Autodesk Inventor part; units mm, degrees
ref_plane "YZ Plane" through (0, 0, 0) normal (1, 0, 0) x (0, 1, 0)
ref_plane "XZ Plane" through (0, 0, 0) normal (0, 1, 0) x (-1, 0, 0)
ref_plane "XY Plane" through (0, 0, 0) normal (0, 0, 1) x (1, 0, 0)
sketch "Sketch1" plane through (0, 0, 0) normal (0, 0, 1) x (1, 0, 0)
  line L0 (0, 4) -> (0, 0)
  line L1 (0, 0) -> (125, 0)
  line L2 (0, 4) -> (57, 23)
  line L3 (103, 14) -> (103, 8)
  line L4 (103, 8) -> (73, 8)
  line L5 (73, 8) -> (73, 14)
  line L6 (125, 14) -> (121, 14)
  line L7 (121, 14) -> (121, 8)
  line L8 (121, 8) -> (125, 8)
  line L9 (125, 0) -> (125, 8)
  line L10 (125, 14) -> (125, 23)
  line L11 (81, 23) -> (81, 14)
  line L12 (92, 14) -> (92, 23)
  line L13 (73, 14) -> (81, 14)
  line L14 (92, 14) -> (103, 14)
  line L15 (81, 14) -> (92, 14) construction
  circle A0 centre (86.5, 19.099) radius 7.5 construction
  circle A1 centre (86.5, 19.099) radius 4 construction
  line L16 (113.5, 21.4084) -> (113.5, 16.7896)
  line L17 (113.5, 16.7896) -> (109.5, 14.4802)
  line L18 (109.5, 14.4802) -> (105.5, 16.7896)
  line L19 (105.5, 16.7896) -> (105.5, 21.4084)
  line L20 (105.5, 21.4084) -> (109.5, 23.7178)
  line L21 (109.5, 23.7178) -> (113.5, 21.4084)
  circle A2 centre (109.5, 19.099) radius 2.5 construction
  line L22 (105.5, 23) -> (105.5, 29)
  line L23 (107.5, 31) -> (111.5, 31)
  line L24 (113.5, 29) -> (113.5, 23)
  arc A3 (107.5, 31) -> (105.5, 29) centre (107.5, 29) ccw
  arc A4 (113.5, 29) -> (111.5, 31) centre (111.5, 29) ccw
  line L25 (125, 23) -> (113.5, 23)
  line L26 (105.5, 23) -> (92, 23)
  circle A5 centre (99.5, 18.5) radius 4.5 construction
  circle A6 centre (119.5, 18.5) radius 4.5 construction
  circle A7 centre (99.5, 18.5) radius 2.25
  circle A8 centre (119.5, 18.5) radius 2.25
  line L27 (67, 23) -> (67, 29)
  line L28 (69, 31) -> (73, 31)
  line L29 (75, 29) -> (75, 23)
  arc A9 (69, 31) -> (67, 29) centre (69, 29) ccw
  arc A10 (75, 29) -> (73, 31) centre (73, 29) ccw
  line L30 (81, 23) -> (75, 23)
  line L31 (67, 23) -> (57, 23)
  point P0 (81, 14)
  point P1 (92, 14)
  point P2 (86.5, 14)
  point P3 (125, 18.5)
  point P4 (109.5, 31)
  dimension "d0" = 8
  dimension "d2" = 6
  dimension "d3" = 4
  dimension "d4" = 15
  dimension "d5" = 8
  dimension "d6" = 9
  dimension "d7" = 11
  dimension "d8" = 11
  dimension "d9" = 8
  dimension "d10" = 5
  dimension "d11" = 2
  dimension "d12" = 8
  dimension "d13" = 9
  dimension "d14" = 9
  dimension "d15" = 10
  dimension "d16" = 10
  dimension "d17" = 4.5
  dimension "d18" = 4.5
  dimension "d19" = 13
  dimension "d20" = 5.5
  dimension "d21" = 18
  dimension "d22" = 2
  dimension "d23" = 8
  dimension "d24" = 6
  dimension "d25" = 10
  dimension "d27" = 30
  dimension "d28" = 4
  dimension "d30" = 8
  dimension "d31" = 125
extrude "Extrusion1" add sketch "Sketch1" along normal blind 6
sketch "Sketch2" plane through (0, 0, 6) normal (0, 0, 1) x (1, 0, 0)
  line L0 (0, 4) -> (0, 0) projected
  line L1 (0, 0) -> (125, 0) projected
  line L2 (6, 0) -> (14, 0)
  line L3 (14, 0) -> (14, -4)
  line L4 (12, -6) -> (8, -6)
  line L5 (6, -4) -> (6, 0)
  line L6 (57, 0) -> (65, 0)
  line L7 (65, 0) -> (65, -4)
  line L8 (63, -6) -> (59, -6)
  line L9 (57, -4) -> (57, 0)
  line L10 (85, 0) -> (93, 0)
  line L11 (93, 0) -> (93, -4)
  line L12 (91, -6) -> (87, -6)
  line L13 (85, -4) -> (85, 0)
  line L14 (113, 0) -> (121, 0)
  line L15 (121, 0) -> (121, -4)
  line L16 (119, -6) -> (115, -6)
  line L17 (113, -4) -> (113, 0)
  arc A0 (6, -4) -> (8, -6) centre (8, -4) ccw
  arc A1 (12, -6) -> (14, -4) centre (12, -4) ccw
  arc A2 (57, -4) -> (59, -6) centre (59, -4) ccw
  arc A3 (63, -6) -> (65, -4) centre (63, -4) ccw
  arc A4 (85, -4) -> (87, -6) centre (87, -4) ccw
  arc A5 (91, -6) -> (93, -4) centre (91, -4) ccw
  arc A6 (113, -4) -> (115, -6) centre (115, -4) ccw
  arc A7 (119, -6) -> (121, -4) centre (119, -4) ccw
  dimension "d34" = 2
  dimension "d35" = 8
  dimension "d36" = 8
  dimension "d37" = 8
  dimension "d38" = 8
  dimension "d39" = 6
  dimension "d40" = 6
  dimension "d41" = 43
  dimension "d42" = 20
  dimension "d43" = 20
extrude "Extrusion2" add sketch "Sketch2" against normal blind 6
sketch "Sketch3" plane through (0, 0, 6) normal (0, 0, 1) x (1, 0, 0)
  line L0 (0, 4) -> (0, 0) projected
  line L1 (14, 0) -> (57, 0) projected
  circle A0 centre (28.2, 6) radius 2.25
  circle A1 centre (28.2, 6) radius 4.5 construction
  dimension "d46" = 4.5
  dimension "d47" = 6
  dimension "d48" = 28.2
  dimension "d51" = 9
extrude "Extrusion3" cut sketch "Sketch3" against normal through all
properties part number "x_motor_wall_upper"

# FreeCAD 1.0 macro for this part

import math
import FreeCAD as App
import Part
import Sketcher

V = App.Vector
Q = App.Units.Quantity


def add_polygon(sketch, points):
    """Adds a closed chain of lines whose ends are joined by coincident constraints."""
    first, n = sketch.GeometryCount, len(points)
    for a, b in zip(points, points[1:] + points[:1]):
        sketch.addGeometry(Part.LineSegment(App.Vector(*a, 0), App.Vector(*b, 0)), False)
    for i in range(n):
        sketch.addConstraint(Sketcher.Constraint("Coincident", first + i, 2, first + (i + 1) % n, 1))

doc = App.newDocument("Part")
body = doc.addObject("PartDesign::Body", "Body")

sketch1 = doc.addObject("Sketcher::SketchObject", "Sketch")
body.addObject(sketch1)
sketch1.AttachmentSupport = (doc.XY_Plane, [""])
sketch1.MapMode = "FlatFace"
sketch1.addGeometry(Part.LineSegment(V(57, 23, 0), V(0, 4, 0)), False)
sketch1.addGeometry(Part.LineSegment(V(0, 4, 0), V(0, 0, 0)), False)
sketch1.addGeometry(Part.LineSegment(V(0, 0, 0), V(125, 0, 0)), False)
sketch1.addGeometry(Part.LineSegment(V(125, 0, 0), V(125, 8, 0)), False)
sketch1.addGeometry(Part.LineSegment(V(125, 8, 0), V(121, 8, 0)), False)
sketch1.addGeometry(Part.LineSegment(V(121, 8, 0), V(121, 14, 0)), False)
sketch1.addGeometry(Part.LineSegment(V(121, 14, 0), V(125, 14, 0)), False)
sketch1.addGeometry(Part.LineSegment(V(125, 14, 0), V(125, 23, 0)), False)
sketch1.addGeometry(Part.LineSegment(V(125, 23, 0), V(113.5, 23, 0)), False)
sketch1.addGeometry(Part.LineSegment(V(113.5, 23, 0), V(113.5, 29, 0)), False)
sketch1.addGeometry(Part.ArcOfCircle(Part.Circle(V(111.5, 29, 0), V(0, 0, 1), 2), math.radians(0), math.radians(90)), False)
sketch1.addGeometry(Part.LineSegment(V(111.5, 31, 0), V(107.5, 31, 0)), False)
sketch1.addGeometry(Part.ArcOfCircle(Part.Circle(V(107.5, 29, 0), V(0, 0, 1), 2), math.radians(90), math.radians(180)), False)
sketch1.addGeometry(Part.LineSegment(V(105.5, 29, 0), V(105.5, 23, 0)), False)
sketch1.addGeometry(Part.LineSegment(V(105.5, 23, 0), V(92, 23, 0)), False)
sketch1.addGeometry(Part.LineSegment(V(92, 23, 0), V(92, 14, 0)), False)
sketch1.addGeometry(Part.LineSegment(V(92, 14, 0), V(103, 14, 0)), False)
sketch1.addGeometry(Part.LineSegment(V(103, 14, 0), V(103, 8, 0)), False)
sketch1.addGeometry(Part.LineSegment(V(103, 8, 0), V(73, 8, 0)), False)
sketch1.addGeometry(Part.LineSegment(V(73, 8, 0), V(73, 14, 0)), False)
sketch1.addGeometry(Part.LineSegment(V(73, 14, 0), V(81, 14, 0)), False)
sketch1.addGeometry(Part.LineSegment(V(81, 14, 0), V(81, 23, 0)), False)
sketch1.addGeometry(Part.LineSegment(V(81, 23, 0), V(75, 23, 0)), False)
sketch1.addGeometry(Part.LineSegment(V(75, 23, 0), V(75, 29, 0)), False)
sketch1.addGeometry(Part.ArcOfCircle(Part.Circle(V(73, 29, 0), V(0, 0, 1), 2), math.radians(0), math.radians(90)), False)
sketch1.addGeometry(Part.LineSegment(V(73, 31, 0), V(69, 31, 0)), False)
sketch1.addGeometry(Part.ArcOfCircle(Part.Circle(V(69, 29, 0), V(0, 0, 1), 2), math.radians(90), math.radians(180)), False)
sketch1.addGeometry(Part.LineSegment(V(67, 29, 0), V(67, 23, 0)), False)
sketch1.addGeometry(Part.LineSegment(V(67, 23, 0), V(57, 23, 0)), False)
sketch1.addGeometry(Part.Circle(V(99.5, 18.5, 0), V(0, 0, 1), 2.2), False)
add_polygon(sketch1, [(109.5, 23.7), (113.5, 21.4), (113.5, 16.8), (109.5, 14.5), (105.5, 16.8), (105.5, 21.4)])
sketch1.addGeometry(Part.Circle(V(119.5, 18.5, 0), V(0, 0, 1), 2.2), False)
sketch1.addConstraint(Sketcher.Constraint("Coincident", 0, 2, 1, 1))
sketch1.addConstraint(Sketcher.Constraint("Coincident", 1, 2, 2, 1))
sketch1.addConstraint(Sketcher.Constraint("Coincident", 2, 2, 3, 1))
sketch1.addConstraint(Sketcher.Constraint("Coincident", 3, 2, 4, 1))
sketch1.addConstraint(Sketcher.Constraint("Coincident", 4, 2, 5, 1))
sketch1.addConstraint(Sketcher.Constraint("Coincident", 5, 2, 6, 1))
sketch1.addConstraint(Sketcher.Constraint("Coincident", 6, 2, 7, 1))
sketch1.addConstraint(Sketcher.Constraint("Coincident", 7, 2, 8, 1))
sketch1.addConstraint(Sketcher.Constraint("Coincident", 8, 2, 9, 1))
sketch1.addConstraint(Sketcher.Constraint("Tangent", 9, 2, 10, 1))
sketch1.addConstraint(Sketcher.Constraint("Tangent", 10, 2, 11, 1))
sketch1.addConstraint(Sketcher.Constraint("Tangent", 11, 2, 12, 1))
sketch1.addConstraint(Sketcher.Constraint("Tangent", 12, 2, 13, 1))
sketch1.addConstraint(Sketcher.Constraint("Coincident", 13, 2, 14, 1))
sketch1.addConstraint(Sketcher.Constraint("Coincident", 14, 2, 15, 1))
sketch1.addConstraint(Sketcher.Constraint("Coincident", 15, 2, 16, 1))
sketch1.addConstraint(Sketcher.Constraint("Coincident", 16, 2, 17, 1))
sketch1.addConstraint(Sketcher.Constraint("Coincident", 17, 2, 18, 1))
sketch1.addConstraint(Sketcher.Constraint("Coincident", 18, 2, 19, 1))
sketch1.addConstraint(Sketcher.Constraint("Coincident", 19, 2, 20, 1))
sketch1.addConstraint(Sketcher.Constraint("Coincident", 20, 2, 21, 1))
sketch1.addConstraint(Sketcher.Constraint("Coincident", 21, 2, 22, 1))
sketch1.addConstraint(Sketcher.Constraint("Coincident", 22, 2, 23, 1))
sketch1.addConstraint(Sketcher.Constraint("Tangent", 23, 2, 24, 1))
sketch1.addConstraint(Sketcher.Constraint("Tangent", 24, 2, 25, 1))
sketch1.addConstraint(Sketcher.Constraint("Tangent", 25, 2, 26, 1))
sketch1.addConstraint(Sketcher.Constraint("Tangent", 26, 2, 27, 1))
sketch1.addConstraint(Sketcher.Constraint("Coincident", 27, 2, 28, 1))
sketch1.addConstraint(Sketcher.Constraint("Coincident", 28, 2, 0, 1))
sketch1.addConstraint(Sketcher.Constraint("Vertical", 1))
sketch1.addConstraint(Sketcher.Constraint("Horizontal", 2))
sketch1.addConstraint(Sketcher.Constraint("Vertical", 3))
sketch1.addConstraint(Sketcher.Constraint("Horizontal", 4))
sketch1.addConstraint(Sketcher.Constraint("Vertical", 5))
sketch1.addConstraint(Sketcher.Constraint("Horizontal", 6))
sketch1.addConstraint(Sketcher.Constraint("Vertical", 7))
sketch1.addConstraint(Sketcher.Constraint("Horizontal", 8))
sketch1.addConstraint(Sketcher.Constraint("Vertical", 9))
sketch1.addConstraint(Sketcher.Constraint("Horizontal", 11))
sketch1.addConstraint(Sketcher.Constraint("Vertical", 13))
sketch1.addConstraint(Sketcher.Constraint("Horizontal", 14))
sketch1.addConstraint(Sketcher.Constraint("Vertical", 15))
sketch1.addConstraint(Sketcher.Constraint("Horizontal", 16))
sketch1.addConstraint(Sketcher.Constraint("Vertical", 17))
sketch1.addConstraint(Sketcher.Constraint("Horizontal", 18))
sketch1.addConstraint(Sketcher.Constraint("Vertical", 19))
sketch1.addConstraint(Sketcher.Constraint("Horizontal", 20))
sketch1.addConstraint(Sketcher.Constraint("Vertical", 21))
sketch1.addConstraint(Sketcher.Constraint("Horizontal", 22))
sketch1.addConstraint(Sketcher.Constraint("Vertical", 23))
sketch1.addConstraint(Sketcher.Constraint("Horizontal", 25))
sketch1.addConstraint(Sketcher.Constraint("Vertical", 27))
sketch1.addConstraint(Sketcher.Constraint("Horizontal", 28))
sketch1.addConstraint(Sketcher.Constraint("Vertical", 31))
sketch1.addConstraint(Sketcher.Constraint("Vertical", 34))
sketch1.addConstraint(Sketcher.Constraint("Coincident", 1, 2, -1, 1))
sketch1.addConstraint(Sketcher.Constraint("Equal", 10, 12))
sketch1.addConstraint(Sketcher.Constraint("Equal", 12, 24))
sketch1.addConstraint(Sketcher.Constraint("Equal", 24, 26))
sketch1.addConstraint(Sketcher.Constraint("Equal", 29, 36))
sketch1.addConstraint(Sketcher.Constraint("Parallel", 30, 33))
sketch1.addConstraint(Sketcher.Constraint("Parallel", 32, 35))
sketch1.addConstraint(Sketcher.Constraint("Horizontal", 12, 3, 24, 3))
sketch1.addConstraint(Sketcher.Constraint("Horizontal", 29, 3, 36, 3))
sketch1.addConstraint(Sketcher.Constraint("Horizontal", 8, 2, 13, 2))
sketch1.addConstraint(Sketcher.Constraint("Horizontal", 6, 2, 15, 2))
sketch1.addConstraint(Sketcher.Constraint("Horizontal", 4, 2, 17, 2))
sketch1.addConstraint(Sketcher.Constraint("Horizontal", 16, 2, 19, 2))
sketch1.addConstraint(Sketcher.Constraint("Horizontal", 14, 2, 21, 2))
sketch1.addConstraint(Sketcher.Constraint("Horizontal", 22, 2, 27, 2))
sketch1.addConstraint(Sketcher.Constraint("Horizontal", 31, 2, 33, 2))
sketch1.addConstraint(Sketcher.Constraint("Horizontal", 30, 2, 34, 2))
sketch1.addConstraint(Sketcher.Constraint("Vertical", 3, 2, 6, 2))
sketch1.addConstraint(Sketcher.Constraint("Vertical", 24, 3, 18, 2))
sketch1.addConstraint(Sketcher.Constraint("Vertical", 9, 2, 30, 2))
sketch1.addConstraint(Sketcher.Constraint("Vertical", 13, 2, 33, 2))
sketch1.addConstraint(Sketcher.Constraint("Vertical", 32, 2, 35, 2))
sketch1.addConstraint(Sketcher.Constraint("Equal", 6, 11))
sketch1.addConstraint(Sketcher.Constraint("Equal", 11, 25))
sketch1.addConstraint(Sketcher.Constraint("Equal", 25, 1))
sketch1.addConstraint(Sketcher.Constraint("Equal", 20, 3))
sketch1.addConstraint(Sketcher.Constraint("Equal", 22, 5))
sketch1.addConstraint(Sketcher.Constraint("Equal", 5, 9))
sketch1.addConstraint(Sketcher.Constraint("Radius", 10, Q("2 mm")))
sketch1.addConstraint(Sketcher.Constraint("Diameter", 29, Q("4.5 mm")))
sketch1.addConstraint(Sketcher.Constraint("DistanceX", 2, 1, 2, 2, Q("125 mm")))
sketch1.addConstraint(Sketcher.Constraint("DistanceX", 4, 2, 4, 1, Q("4 mm")))
sketch1.addConstraint(Sketcher.Constraint("DistanceX", 16, 1, 16, 2, Q("11 mm")))
sketch1.addConstraint(Sketcher.Constraint("DistanceX", 18, 2, 18, 1, Q("30 mm")))
sketch1.addConstraint(Sketcher.Constraint("DistanceX", 20, 1, 20, 2, Q("8 mm")))
sketch1.addConstraint(Sketcher.Constraint("DistanceX", 28, 2, 28, 1, Q("10 mm")))
sketch1.addConstraint(Sketcher.Constraint("DistanceY", 7, 1, 7, 2, Q("9 mm")))
sketch1.addConstraint(Sketcher.Constraint("Angle", 30, Q("-30 deg")))
sketch1.addConstraint(Sketcher.Constraint("DistanceX", 29, 3, 12, 3, Q("8 mm")))
sketch1.addConstraint(Sketcher.Constraint("DistanceX", 10, 3, 36, 3, Q("8 mm")))
sketch1.addConstraint(Sketcher.Constraint("DistanceX", 17, 2, 4, 2, Q("18 mm")))
sketch1.addConstraint(Sketcher.Constraint("DistanceX", 36, 3, 2, 2, Q("5.5 mm")))
sketch1.addConstraint(Sketcher.Constraint("DistanceY", 5, 2, 36, 3, Q("4.5 mm")))
sketch1.addConstraint(Sketcher.Constraint("DistanceY", 31, 2, 31, 1, Q("4.6188 mm")))
sketch1.addConstraint(Sketcher.Constraint("DistanceY", -1, 1, 30, 2, Q("21.4084 mm")))
pad1 = doc.addObject("PartDesign::Pad", "Pad")
body.addObject(pad1)
pad1.Profile = sketch1
pad1.Length = 6

sketch2 = doc.addObject("Sketcher::SketchObject", "Sketch001")
body.addObject(sketch2)
sketch2.AttachmentSupport = (doc.XY_Plane, [""])
sketch2.MapMode = "FlatFace"
sketch2.AttachmentOffset = App.Placement(V(0, 0, 6), App.Rotation())
sketch2.addGeometry(Part.LineSegment(V(121, 0, 0), V(113, 0, 0)), False)
sketch2.addGeometry(Part.LineSegment(V(113, 0, 0), V(113, -4, 0)), False)
sketch2.addGeometry(Part.ArcOfCircle(Part.Circle(V(115, -4, 0), V(0, 0, 1), 2), math.radians(180), math.radians(270)), False)
sketch2.addGeometry(Part.LineSegment(V(115, -6, 0), V(119, -6, 0)), False)
sketch2.addGeometry(Part.ArcOfCircle(Part.Circle(V(119, -4, 0), V(0, 0, 1), 2), math.radians(-90), math.radians(0)), False)
sketch2.addGeometry(Part.LineSegment(V(121, -4, 0), V(121, 0, 0)), False)
sketch2.addGeometry(Part.LineSegment(V(93, 0, 0), V(85, 0, 0)), False)
sketch2.addGeometry(Part.LineSegment(V(85, 0, 0), V(85, -4, 0)), False)
sketch2.addGeometry(Part.ArcOfCircle(Part.Circle(V(87, -4, 0), V(0, 0, 1), 2), math.radians(180), math.radians(270)), False)
sketch2.addGeometry(Part.LineSegment(V(87, -6, 0), V(91, -6, 0)), False)
sketch2.addGeometry(Part.ArcOfCircle(Part.Circle(V(91, -4, 0), V(0, 0, 1), 2), math.radians(-90), math.radians(0)), False)
sketch2.addGeometry(Part.LineSegment(V(93, -4, 0), V(93, 0, 0)), False)
sketch2.addGeometry(Part.LineSegment(V(65, 0, 0), V(57, 0, 0)), False)
sketch2.addGeometry(Part.LineSegment(V(57, 0, 0), V(57, -4, 0)), False)
sketch2.addGeometry(Part.ArcOfCircle(Part.Circle(V(59, -4, 0), V(0, 0, 1), 2), math.radians(180), math.radians(270)), False)
sketch2.addGeometry(Part.LineSegment(V(59, -6, 0), V(63, -6, 0)), False)
sketch2.addGeometry(Part.ArcOfCircle(Part.Circle(V(63, -4, 0), V(0, 0, 1), 2), math.radians(-90), math.radians(0)), False)
sketch2.addGeometry(Part.LineSegment(V(65, -4, 0), V(65, 0, 0)), False)
sketch2.addGeometry(Part.LineSegment(V(14, 0, 0), V(6, 0, 0)), False)
sketch2.addGeometry(Part.LineSegment(V(6, 0, 0), V(6, -4, 0)), False)
sketch2.addGeometry(Part.ArcOfCircle(Part.Circle(V(8, -4, 0), V(0, 0, 1), 2), math.radians(180), math.radians(270)), False)
sketch2.addGeometry(Part.LineSegment(V(8, -6, 0), V(12, -6, 0)), False)
sketch2.addGeometry(Part.ArcOfCircle(Part.Circle(V(12, -4, 0), V(0, 0, 1), 2), math.radians(-90), math.radians(0)), False)
sketch2.addGeometry(Part.LineSegment(V(14, -4, 0), V(14, 0, 0)), False)
sketch2.addConstraint(Sketcher.Constraint("Coincident", 0, 2, 1, 1))
sketch2.addConstraint(Sketcher.Constraint("Tangent", 1, 2, 2, 1))
sketch2.addConstraint(Sketcher.Constraint("Tangent", 2, 2, 3, 1))
sketch2.addConstraint(Sketcher.Constraint("Tangent", 3, 2, 4, 1))
sketch2.addConstraint(Sketcher.Constraint("Tangent", 4, 2, 5, 1))
sketch2.addConstraint(Sketcher.Constraint("Coincident", 5, 2, 0, 1))
sketch2.addConstraint(Sketcher.Constraint("Coincident", 6, 2, 7, 1))
sketch2.addConstraint(Sketcher.Constraint("Tangent", 7, 2, 8, 1))
sketch2.addConstraint(Sketcher.Constraint("Tangent", 8, 2, 9, 1))
sketch2.addConstraint(Sketcher.Constraint("Tangent", 9, 2, 10, 1))
sketch2.addConstraint(Sketcher.Constraint("Tangent", 10, 2, 11, 1))
sketch2.addConstraint(Sketcher.Constraint("Coincident", 11, 2, 6, 1))
sketch2.addConstraint(Sketcher.Constraint("Coincident", 12, 2, 13, 1))
sketch2.addConstraint(Sketcher.Constraint("Tangent", 13, 2, 14, 1))
sketch2.addConstraint(Sketcher.Constraint("Tangent", 14, 2, 15, 1))
sketch2.addConstraint(Sketcher.Constraint("Tangent", 15, 2, 16, 1))
sketch2.addConstraint(Sketcher.Constraint("Tangent", 16, 2, 17, 1))
sketch2.addConstraint(Sketcher.Constraint("Coincident", 17, 2, 12, 1))
sketch2.addConstraint(Sketcher.Constraint("Coincident", 18, 2, 19, 1))
sketch2.addConstraint(Sketcher.Constraint("Tangent", 19, 2, 20, 1))
sketch2.addConstraint(Sketcher.Constraint("Tangent", 20, 2, 21, 1))
sketch2.addConstraint(Sketcher.Constraint("Tangent", 21, 2, 22, 1))
sketch2.addConstraint(Sketcher.Constraint("Tangent", 22, 2, 23, 1))
sketch2.addConstraint(Sketcher.Constraint("Coincident", 23, 2, 18, 1))
sketch2.addConstraint(Sketcher.Constraint("Horizontal", 0))
sketch2.addConstraint(Sketcher.Constraint("Vertical", 1))
sketch2.addConstraint(Sketcher.Constraint("Horizontal", 3))
sketch2.addConstraint(Sketcher.Constraint("Vertical", 5))
sketch2.addConstraint(Sketcher.Constraint("Horizontal", 6))
sketch2.addConstraint(Sketcher.Constraint("Vertical", 7))
sketch2.addConstraint(Sketcher.Constraint("Horizontal", 9))
sketch2.addConstraint(Sketcher.Constraint("Vertical", 11))
sketch2.addConstraint(Sketcher.Constraint("Horizontal", 12))
sketch2.addConstraint(Sketcher.Constraint("Vertical", 13))
sketch2.addConstraint(Sketcher.Constraint("Horizontal", 15))
sketch2.addConstraint(Sketcher.Constraint("Vertical", 17))
sketch2.addConstraint(Sketcher.Constraint("Horizontal", 18))
sketch2.addConstraint(Sketcher.Constraint("Vertical", 19))
sketch2.addConstraint(Sketcher.Constraint("Horizontal", 21))
sketch2.addConstraint(Sketcher.Constraint("Vertical", 23))
sketch2.addConstraint(Sketcher.Constraint("Equal", 2, 4))
sketch2.addConstraint(Sketcher.Constraint("Equal", 4, 8))
sketch2.addConstraint(Sketcher.Constraint("Equal", 8, 10))
sketch2.addConstraint(Sketcher.Constraint("Equal", 10, 14))
sketch2.addConstraint(Sketcher.Constraint("Equal", 14, 16))
sketch2.addConstraint(Sketcher.Constraint("Equal", 16, 20))
sketch2.addConstraint(Sketcher.Constraint("Equal", 20, 22))
sketch2.addConstraint(Sketcher.Constraint("PointOnObject", 0, 2, -1))
sketch2.addConstraint(Sketcher.Constraint("PointOnObject", 6, 2, -1))
sketch2.addConstraint(Sketcher.Constraint("PointOnObject", 12, 2, -1))
sketch2.addConstraint(Sketcher.Constraint("PointOnObject", 18, 2, -1))
sketch2.addConstraint(Sketcher.Constraint("Horizontal", 4, 3, 8, 3))
sketch2.addConstraint(Sketcher.Constraint("Horizontal", 10, 3, 14, 3))
sketch2.addConstraint(Sketcher.Constraint("Horizontal", 16, 3, 20, 3))
sketch2.addConstraint(Sketcher.Constraint("Equal", 0, 6))
sketch2.addConstraint(Sketcher.Constraint("Equal", 6, 12))
sketch2.addConstraint(Sketcher.Constraint("Equal", 12, 18))
sketch2.addConstraint(Sketcher.Constraint("Equal", 21, 1))
sketch2.addConstraint(Sketcher.Constraint("Radius", 2, Q("2 mm")))
sketch2.addConstraint(Sketcher.Constraint("DistanceX", 0, 2, 0, 1, Q("8 mm")))
sketch2.addConstraint(Sketcher.Constraint("DistanceX", -1, 1, 20, 3, Q("8 mm")))
sketch2.addConstraint(Sketcher.Constraint("DistanceX", -1, 1, 2, 3, Q("115 mm")))
sketch2.addConstraint(Sketcher.Constraint("DistanceX", -1, 1, 8, 3, Q("87 mm")))
sketch2.addConstraint(Sketcher.Constraint("DistanceX", -1, 1, 14, 3, Q("59 mm")))
pad2 = doc.addObject("PartDesign::Pad", "Pad001")
body.addObject(pad2)
pad2.Profile = sketch2
pad2.Length = 6
pad2.Reversed = True

sketch3 = doc.addObject("Sketcher::SketchObject", "Sketch002")
body.addObject(sketch3)
sketch3.AttachmentSupport = (doc.XY_Plane, [""])
sketch3.MapMode = "FlatFace"
sketch3.AttachmentOffset = App.Placement(V(0, 0, 6), App.Rotation())
sketch3.addGeometry(Part.Circle(V(28.2, 6, 0), V(0, 0, 1), 2.2), False)
sketch3.addConstraint(Sketcher.Constraint("Diameter", 0, Q("4.5 mm")))
sketch3.addConstraint(Sketcher.Constraint("DistanceY", -1, 1, 0, 3, Q("6 mm")))
sketch3.addConstraint(Sketcher.Constraint("DistanceX", -1, 1, 0, 3, Q("28.2 mm")))
pocket1 = doc.addObject("PartDesign::Pocket", "Pocket")
body.addObject(pocket1)
pocket1.Profile = sketch3
pocket1.Type = "ThroughAll"

doc.recompute()
